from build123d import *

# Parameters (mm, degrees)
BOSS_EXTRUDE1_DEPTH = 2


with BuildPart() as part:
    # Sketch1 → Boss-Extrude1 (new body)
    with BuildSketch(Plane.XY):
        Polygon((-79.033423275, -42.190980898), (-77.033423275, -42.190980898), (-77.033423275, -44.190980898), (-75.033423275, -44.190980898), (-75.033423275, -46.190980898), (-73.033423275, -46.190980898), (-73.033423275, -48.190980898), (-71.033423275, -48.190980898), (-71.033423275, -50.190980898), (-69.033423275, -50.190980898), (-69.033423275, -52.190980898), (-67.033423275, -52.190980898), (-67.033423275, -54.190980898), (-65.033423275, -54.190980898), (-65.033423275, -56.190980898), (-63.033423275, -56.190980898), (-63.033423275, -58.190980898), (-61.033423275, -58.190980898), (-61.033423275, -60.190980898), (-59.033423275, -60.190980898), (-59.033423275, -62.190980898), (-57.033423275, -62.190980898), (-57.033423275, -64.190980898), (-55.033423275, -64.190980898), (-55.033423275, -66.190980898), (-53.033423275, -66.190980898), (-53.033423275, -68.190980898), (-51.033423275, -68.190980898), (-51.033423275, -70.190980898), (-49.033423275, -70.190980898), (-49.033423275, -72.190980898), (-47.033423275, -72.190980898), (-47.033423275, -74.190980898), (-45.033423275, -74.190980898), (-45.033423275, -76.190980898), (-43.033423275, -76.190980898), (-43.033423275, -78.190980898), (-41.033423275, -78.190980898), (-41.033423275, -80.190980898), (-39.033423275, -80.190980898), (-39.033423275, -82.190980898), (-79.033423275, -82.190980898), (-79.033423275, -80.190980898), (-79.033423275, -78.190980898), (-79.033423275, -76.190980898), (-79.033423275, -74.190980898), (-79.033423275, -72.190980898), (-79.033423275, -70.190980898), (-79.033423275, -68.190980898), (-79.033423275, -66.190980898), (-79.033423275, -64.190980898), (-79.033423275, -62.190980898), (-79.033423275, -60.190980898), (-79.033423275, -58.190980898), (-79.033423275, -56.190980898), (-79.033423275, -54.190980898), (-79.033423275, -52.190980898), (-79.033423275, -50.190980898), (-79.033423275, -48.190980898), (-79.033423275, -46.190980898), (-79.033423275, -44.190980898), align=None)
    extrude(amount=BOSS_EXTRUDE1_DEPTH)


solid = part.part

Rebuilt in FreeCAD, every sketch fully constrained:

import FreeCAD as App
import Part
import Sketcher
Q = App.Units.Quantity

doc = App.newDocument("Part")
params = doc.addObject("Spreadsheet::Sheet", "Params")
for row, (alias, value) in enumerate([
    ("sketch1_width", "2 mm"),
    ("pad1_length", "2 mm"),
], start=1):
    params.set(f"A{row}", alias)
    params.set(f"B{row}", "=" + value)
    params.setAlias(f"B{row}", alias)

body = doc.addObject("PartDesign::Body", "Body")

# Sketch on XY plane
sketch1 = body.newObject("Sketcher::SketchObject", "Sketch")
sketch1.AttachmentSupport = (doc.getObject("XY_Plane"), [""])
sketch1.MapMode = "FlatFace"
sketch1.addGeometry([
    Part.LineSegment(App.Vector(-77, -42.2, 0), App.Vector(-79, -42.2, 0)),  # 0
    Part.LineSegment(App.Vector(-79, -42.2, 0), App.Vector(-79, -82.2, 0)),  # 1
    Part.LineSegment(App.Vector(-79, -82.2, 0), App.Vector(-39, -82.2, 0)),  # 2
    Part.LineSegment(App.Vector(-39, -82.2, 0), App.Vector(-39, -80.2, 0)),  # 3
    Part.LineSegment(App.Vector(-39, -80.2, 0), App.Vector(-41, -80.2, 0)),  # 4
    Part.LineSegment(App.Vector(-41, -80.2, 0), App.Vector(-41, -78.2, 0)),  # 5
    Part.LineSegment(App.Vector(-41, -78.2, 0), App.Vector(-43, -78.2, 0)),  # 6
    Part.LineSegment(App.Vector(-43, -78.2, 0), App.Vector(-43, -76.2, 0)),  # 7
    Part.LineSegment(App.Vector(-43, -76.2, 0), App.Vector(-45, -76.2, 0)),  # 8
    Part.LineSegment(App.Vector(-45, -76.2, 0), App.Vector(-45, -74.2, 0)),  # 9
    Part.LineSegment(App.Vector(-45, -74.2, 0), App.Vector(-47, -74.2, 0)),  # 10
    Part.LineSegment(App.Vector(-47, -74.2, 0), App.Vector(-47, -72.2, 0)),  # 11
    Part.LineSegment(App.Vector(-47, -72.2, 0), App.Vector(-49, -72.2, 0)),  # 12
    Part.LineSegment(App.Vector(-49, -72.2, 0), App.Vector(-49, -70.2, 0)),  # 13
    Part.LineSegment(App.Vector(-49, -70.2, 0), App.Vector(-51, -70.2, 0)),  # 14
    Part.LineSegment(App.Vector(-51, -70.2, 0), App.Vector(-51, -68.2, 0)),  # 15
    Part.LineSegment(App.Vector(-51, -68.2, 0), App.Vector(-53, -68.2, 0)),  # 16
    Part.LineSegment(App.Vector(-53, -68.2, 0), App.Vector(-53, -66.2, 0)),  # 17
    Part.LineSegment(App.Vector(-53, -66.2, 0), App.Vector(-55, -66.2, 0)),  # 18
    Part.LineSegment(App.Vector(-55, -66.2, 0), App.Vector(-55, -64.2, 0)),  # 19
    Part.LineSegment(App.Vector(-55, -64.2, 0), App.Vector(-57, -64.2, 0)),  # 20
    Part.LineSegment(App.Vector(-57, -64.2, 0), App.Vector(-57, -62.2, 0)),  # 21
    Part.LineSegment(App.Vector(-57, -62.2, 0), App.Vector(-59, -62.2, 0)),  # 22
    Part.LineSegment(App.Vector(-59, -62.2, 0), App.Vector(-59, -60.2, 0)),  # 23
    Part.LineSegment(App.Vector(-59, -60.2, 0), App.Vector(-61, -60.2, 0)),  # 24
    Part.LineSegment(App.Vector(-61, -60.2, 0), App.Vector(-61, -58.2, 0)),  # 25
    Part.LineSegment(App.Vector(-61, -58.2, 0), App.Vector(-63, -58.2, 0)),  # 26
    Part.LineSegment(App.Vector(-63, -58.2, 0), App.Vector(-63, -56.2, 0)),  # 27
    Part.LineSegment(App.Vector(-63, -56.2, 0), App.Vector(-65, -56.2, 0)),  # 28
    Part.LineSegment(App.Vector(-65, -56.2, 0), App.Vector(-65, -54.2, 0)),  # 29
    Part.LineSegment(App.Vector(-65, -54.2, 0), App.Vector(-67, -54.2, 0)),  # 30
    Part.LineSegment(App.Vector(-67, -54.2, 0), App.Vector(-67, -52.2, 0)),  # 31
    Part.LineSegment(App.Vector(-67, -52.2, 0), App.Vector(-69, -52.2, 0)),  # 32
    Part.LineSegment(App.Vector(-69, -52.2, 0), App.Vector(-69, -50.2, 0)),  # 33
    Part.LineSegment(App.Vector(-69, -50.2, 0), App.Vector(-71, -50.2, 0)),  # 34
    Part.LineSegment(App.Vector(-71, -50.2, 0), App.Vector(-71, -48.2, 0)),  # 35
    Part.LineSegment(App.Vector(-71, -48.2, 0), App.Vector(-73, -48.2, 0)),  # 36
    Part.LineSegment(App.Vector(-73, -48.2, 0), App.Vector(-73, -46.2, 0)),  # 37
    Part.LineSegment(App.Vector(-73, -46.2, 0), App.Vector(-75, -46.2, 0)),  # 38
    Part.LineSegment(App.Vector(-75, -46.2, 0), App.Vector(-75, -44.2, 0)),  # 39
    Part.LineSegment(App.Vector(-75, -44.2, 0), App.Vector(-77, -44.2, 0)),  # 40
    Part.LineSegment(App.Vector(-77, -44.2, 0), App.Vector(-77, -42.2, 0)),  # 41
], False)
sketch1.addConstraint([
    Sketcher.Constraint("Coincident", 0, 2, 1, 1),
    Sketcher.Constraint("Coincident", 1, 2, 2, 1),
    Sketcher.Constraint("Coincident", 2, 2, 3, 1),
    Sketcher.Constraint("Coincident", 3, 2, 4, 1),
    Sketcher.Constraint("Coincident", 4, 2, 5, 1),
    Sketcher.Constraint("Coincident", 5, 2, 6, 1),
    Sketcher.Constraint("Coincident", 6, 2, 7, 1),
    Sketcher.Constraint("Coincident", 7, 2, 8, 1),
    Sketcher.Constraint("Coincident", 8, 2, 9, 1),
    Sketcher.Constraint("Coincident", 9, 2, 10, 1),
    Sketcher.Constraint("Coincident", 10, 2, 11, 1),
    Sketcher.Constraint("Coincident", 11, 2, 12, 1),
    Sketcher.Constraint("Coincident", 12, 2, 13, 1),
    Sketcher.Constraint("Coincident", 13, 2, 14, 1),
    Sketcher.Constraint("Coincident", 14, 2, 15, 1),
    Sketcher.Constraint("Coincident", 15, 2, 16, 1),
    Sketcher.Constraint("Coincident", 16, 2, 17, 1),
    Sketcher.Constraint("Coincident", 17, 2, 18, 1),
    Sketcher.Constraint("Coincident", 18, 2, 19, 1),
    Sketcher.Constraint("Coincident", 19, 2, 20, 1),
    Sketcher.Constraint("Coincident", 20, 2, 21, 1),
    Sketcher.Constraint("Coincident", 21, 2, 22, 1),
    Sketcher.Constraint("Coincident", 22, 2, 23, 1),
    Sketcher.Constraint("Coincident", 23, 2, 24, 1),
    Sketcher.Constraint("Coincident", 24, 2, 25, 1),
    Sketcher.Constraint("Coincident", 25, 2, 26, 1),
    Sketcher.Constraint("Coincident", 26, 2, 27, 1),
    Sketcher.Constraint("Coincident", 27, 2, 28, 1),
    Sketcher.Constraint("Coincident", 28, 2, 29, 1),
    Sketcher.Constraint("Coincident", 29, 2, 30, 1),
    Sketcher.Constraint("Coincident", 30, 2, 31, 1),
    Sketcher.Constraint("Coincident", 31, 2, 32, 1),
    Sketcher.Constraint("Coincident", 32, 2, 33, 1),
    Sketcher.Constraint("Coincident", 33, 2, 34, 1),
    Sketcher.Constraint("Coincident", 34, 2, 35, 1),
    Sketcher.Constraint("Coincident", 35, 2, 36, 1),
    Sketcher.Constraint("Coincident", 36, 2, 37, 1),
    Sketcher.Constraint("Coincident", 37, 2, 38, 1),
    Sketcher.Constraint("Coincident", 38, 2, 39, 1),
    Sketcher.Constraint("Coincident", 39, 2, 40, 1),
    Sketcher.Constraint("Coincident", 40, 2, 41, 1),
    Sketcher.Constraint("Coincident", 41, 2, 0, 1),
    Sketcher.Constraint("Horizontal", 0),
    Sketcher.Constraint("Vertical", 1),
    Sketcher.Constraint("Horizontal", 2),
    Sketcher.Constraint("Vertical", 3),
    Sketcher.Constraint("Horizontal", 4),
    Sketcher.Constraint("Vertical", 5),
    Sketcher.Constraint("Horizontal", 6),
    Sketcher.Constraint("Vertical", 7),
    Sketcher.Constraint("Horizontal", 8),
    Sketcher.Constraint("Vertical", 9),
    Sketcher.Constraint("Horizontal", 10),
    Sketcher.Constraint("Vertical", 11),
    Sketcher.Constraint("Horizontal", 12),
    Sketcher.Constraint("Vertical", 13),
    Sketcher.Constraint("Horizontal", 14),
    Sketcher.Constraint("Vertical", 15),
    Sketcher.Constraint("Horizontal", 16),
    Sketcher.Constraint("Vertical", 17),
    Sketcher.Constraint("Horizontal", 18),
    Sketcher.Constraint("Vertical", 19),
    Sketcher.Constraint("Horizontal", 20),
    Sketcher.Constraint("Vertical", 21),
    Sketcher.Constraint("Horizontal", 22),
    Sketcher.Constraint("Vertical", 23),
    Sketcher.Constraint("Horizontal", 24),
    Sketcher.Constraint("Vertical", 25),
    Sketcher.Constraint("Horizontal", 26),
    Sketcher.Constraint("Vertical", 27),
    Sketcher.Constraint("Horizontal", 28),
    Sketcher.Constraint("Vertical", 29),
    Sketcher.Constraint("Horizontal", 30),
    Sketcher.Constraint("Vertical", 31),
    Sketcher.Constraint("Horizontal", 32),
    Sketcher.Constraint("Vertical", 33),
    Sketcher.Constraint("Horizontal", 34),
    Sketcher.Constraint("Vertical", 35),
    Sketcher.Constraint("Horizontal", 36),
    Sketcher.Constraint("Vertical", 37),
    Sketcher.Constraint("Horizontal", 38),
    Sketcher.Constraint("Vertical", 39),
    Sketcher.Constraint("Horizontal", 40),
    Sketcher.Constraint("Vertical", 41),
    Sketcher.Constraint("Equal", 0, 4),
    Sketcher.Constraint("Equal", 4, 6),
    Sketcher.Constraint("Equal", 6, 8),
    Sketcher.Constraint("Equal", 8, 10),
    Sketcher.Constraint("Equal", 10, 12),
    Sketcher.Constraint("Equal", 12, 14),
    Sketcher.Constraint("Equal", 14, 16),
    Sketcher.Constraint("Equal", 16, 18),
    Sketcher.Constraint("Equal", 18, 20),
    Sketcher.Constraint("Equal", 20, 22),
    Sketcher.Constraint("Equal", 22, 24),
    Sketcher.Constraint("Equal", 24, 26),
    Sketcher.Constraint("Equal", 26, 28),
    Sketcher.Constraint("Equal", 28, 30),
    Sketcher.Constraint("Equal", 30, 32),
    Sketcher.Constraint("Equal", 32, 34),
    Sketcher.Constraint("Equal", 34, 36),
    Sketcher.Constraint("Equal", 36, 38),
    Sketcher.Constraint("Equal", 38, 40),
    Sketcher.Constraint("Equal", 2, 1),
    Sketcher.Constraint("Equal", 40, 3),
    Sketcher.Constraint("Equal", 3, 5),
    Sketcher.Constraint("Equal", 5, 7),
    Sketcher.Constraint("Equal", 7, 9),
    Sketcher.Constraint("Equal", 9, 11),
    Sketcher.Constraint("Equal", 11, 13),
    Sketcher.Constraint("Equal", 13, 15),
    Sketcher.Constraint("Equal", 15, 17),
    Sketcher.Constraint("Equal", 17, 19),
    Sketcher.Constraint("Equal", 19, 21),
    Sketcher.Constraint("Equal", 21, 23),
    Sketcher.Constraint("Equal", 23, 25),
    Sketcher.Constraint("Equal", 25, 27),
    Sketcher.Constraint("Equal", 27, 29),
    Sketcher.Constraint("Equal", 29, 31),
    Sketcher.Constraint("Equal", 31, 33),
    Sketcher.Constraint("Equal", 33, 35),
    Sketcher.Constraint("Equal", 35, 37),
    Sketcher.Constraint("Equal", 37, 39),
    Sketcher.Constraint("DistanceX", 0, 2, 0, 1, Q("2 mm")),
    Sketcher.Constraint("DistanceY", 0, 2, -1, 1, Q("42.190981 mm")),
    Sketcher.Constraint("DistanceX", 0, 2, -1, 1, Q("79.033423 mm")),
])
sketch1.setExpression("Constraints[123]", "Params.sketch1_width")
pad1 = body.newObject("PartDesign::Pad", "Pad")
pad1.Profile = sketch1
pad1.setExpression("Length", "Params.pad1_length")

doc.recompute()
